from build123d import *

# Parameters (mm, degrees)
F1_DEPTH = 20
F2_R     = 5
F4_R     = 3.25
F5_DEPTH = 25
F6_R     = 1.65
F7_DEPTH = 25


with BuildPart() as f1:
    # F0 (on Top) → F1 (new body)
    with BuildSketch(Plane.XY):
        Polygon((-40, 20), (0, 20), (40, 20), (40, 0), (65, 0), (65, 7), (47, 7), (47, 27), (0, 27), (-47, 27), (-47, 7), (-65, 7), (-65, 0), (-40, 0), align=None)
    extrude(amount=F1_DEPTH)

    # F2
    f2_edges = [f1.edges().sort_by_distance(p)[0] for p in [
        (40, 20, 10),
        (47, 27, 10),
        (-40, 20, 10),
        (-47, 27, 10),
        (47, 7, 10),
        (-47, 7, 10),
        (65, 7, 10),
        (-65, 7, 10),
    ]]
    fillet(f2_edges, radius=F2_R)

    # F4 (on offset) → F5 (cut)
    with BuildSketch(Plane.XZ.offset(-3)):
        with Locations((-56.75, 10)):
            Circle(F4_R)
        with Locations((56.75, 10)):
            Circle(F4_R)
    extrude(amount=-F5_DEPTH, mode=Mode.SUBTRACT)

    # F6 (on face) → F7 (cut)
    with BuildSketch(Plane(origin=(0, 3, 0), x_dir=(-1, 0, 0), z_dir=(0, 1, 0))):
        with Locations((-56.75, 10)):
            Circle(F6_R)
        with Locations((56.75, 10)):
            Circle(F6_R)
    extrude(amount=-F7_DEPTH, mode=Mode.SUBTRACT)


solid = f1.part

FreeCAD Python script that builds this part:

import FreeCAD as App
import Part
import Sketcher

V = App.Vector


def edges_at(feature, points):
    """Names of the edges that pass closest to the given points."""
    edges = feature.Shape.Edges
    near = lambda p: min(range(len(edges)), key=lambda i: edges[i].distToShape(Part.Vertex(*p))[0])
    return sorted({f"Edge{near(p) + 1}" for p in points})


def add_polygon(sketch, points):
    """Adds a closed chain of lines whose ends are joined by coincident constraints."""
    first, n = sketch.GeometryCount, len(points)
    for a, b in zip(points, points[1:] + points[:1]):
        sketch.addGeometry(Part.LineSegment(App.Vector(*a, 0), App.Vector(*b, 0)), False)
    for i in range(n):
        sketch.addConstraint(Sketcher.Constraint("Coincident", first + i, 2, first + (i + 1) % n, 1))

doc = App.newDocument("Part")
body = doc.addObject("PartDesign::Body", "Body")

sketch1 = body.newObject("Sketcher::SketchObject", "Sketch")
sketch1.AttachmentSupport = (doc.getObject("XY_Plane"), [""])
sketch1.MapMode = "FlatFace"
add_polygon(sketch1, [(-40, 20), (40, 20), (40, 0), (65, 0), (65, 7), (47, 7), (47, 27), (-47, 27), (-47, 7), (-65, 7), (-65, 0), (-40, 0)])
sketch1.addConstraint([
    Sketcher.Constraint("Horizontal", 0),
    Sketcher.Constraint("Vertical", 1),
    Sketcher.Constraint("Horizontal", 2),
    Sketcher.Constraint("Vertical", 3),
    Sketcher.Constraint("Horizontal", 4),
    Sketcher.Constraint("Vertical", 5),
    Sketcher.Constraint("Horizontal", 6),
    Sketcher.Constraint("Vertical", 7),
    Sketcher.Constraint("Horizontal", 8),
    Sketcher.Constraint("Vertical", 9),
    Sketcher.Constraint("Horizontal", 10),
    Sketcher.Constraint("Vertical", 11),
    Sketcher.Constraint("Symmetric", 2, 2, 9, 2, -1, 1),
    Sketcher.Constraint("Symmetric", 4, 2, 7, 2, -2),
    Sketcher.Constraint("Symmetric", 1, 2, 10, 2, -2),
    Sketcher.Constraint("Equal", 1, 5),
    Sketcher.Constraint("DistanceX", 0, 1, 0, 2, 80.0),
    Sketcher.Constraint("DistanceX", 2, 1, 2, 2, 25.0),
    Sketcher.Constraint("DistanceX", 4, 2, 4, 1, 18.0),
    Sketcher.Constraint("DistanceY", 1, 2, 1, 1, 20.0),
    Sketcher.Constraint("DistanceY", 3, 1, 3, 2, 7.0),
])
pad1 = body.newObject("PartDesign::Pad", "Pad")
pad1.Profile = sketch1
pad1.Length = 20
doc.recompute()

fillet = body.newObject("PartDesign::Fillet", "Fillet")
fillet.Base = (pad1, edges_at(pad1, [
    (40, 20, 10),
    (47, 27, 10),
    (-40, 20, 10),
    (-47, 27, 10),
    (47, 7, 10),
    (-47, 7, 10),
    (65, 7, 10),
    (-65, 7, 10),
]))
fillet.Radius = 5

sketch2 = body.newObject("Sketcher::SketchObject", "Sketch001")
sketch2.AttachmentSupport = (doc.getObject("XZ_Plane"), [""])
sketch2.MapMode = "FlatFace"
sketch2.AttachmentOffset = App.Placement(V(0, 0, -3), App.Rotation())
sketch2.addGeometry([
    Part.Circle(V(-56.75, 10, 0), V(0, 0, 1), 3.25),
    Part.Circle(V(56.75, 10, 0), V(0, 0, 1), 3.25),
], False)
sketch2.addConstraint([
    Sketcher.Constraint("Equal", 0, 1),
    Sketcher.Constraint("Symmetric", 0, 3, 1, 3, -2),
    Sketcher.Constraint("Diameter", 0, 6.5),
    Sketcher.Constraint("DistanceY", -1, 1, 0, 3, 10.0),
    Sketcher.Constraint("DistanceX", 0, 3, 1, 3, 113.5),
])
pocket1 = body.newObject("PartDesign::Pocket", "Pocket")
pocket1.Profile = sketch2
pocket1.Length = 25

sketch3 = body.newObject("Sketcher::SketchObject", "Sketch002")
sketch3.AttachmentSupport = (doc.getObject("XZ_Plane"), [""])
sketch3.MapMode = "FlatFace"
sketch3.AttachmentOffset = App.Placement(V(0, 0, -3), App.Rotation())
sketch3.addGeometry([
    Part.Circle(V(56.75, 10, 0), V(0, 0, 1), 1.65),
    Part.Circle(V(-56.75, 10, 0), V(0, 0, 1), 1.65),
], False)
sketch3.addConstraint([
    Sketcher.Constraint("Equal", 0, 1),
    Sketcher.Constraint("Symmetric", 0, 3, 1, 3, -2),
    Sketcher.Constraint("Diameter", 0, 3.3),
    Sketcher.Constraint("DistanceY", -1, 1, 0, 3, 10.0),
    Sketcher.Constraint("DistanceX", 1, 3, 0, 3, 113.5),
])
pocket2 = body.newObject("PartDesign::Pocket", "Pocket001")
pocket2.Profile = sketch3
pocket2.Length = 25
pocket2.Reversed = True

doc.recompute()
